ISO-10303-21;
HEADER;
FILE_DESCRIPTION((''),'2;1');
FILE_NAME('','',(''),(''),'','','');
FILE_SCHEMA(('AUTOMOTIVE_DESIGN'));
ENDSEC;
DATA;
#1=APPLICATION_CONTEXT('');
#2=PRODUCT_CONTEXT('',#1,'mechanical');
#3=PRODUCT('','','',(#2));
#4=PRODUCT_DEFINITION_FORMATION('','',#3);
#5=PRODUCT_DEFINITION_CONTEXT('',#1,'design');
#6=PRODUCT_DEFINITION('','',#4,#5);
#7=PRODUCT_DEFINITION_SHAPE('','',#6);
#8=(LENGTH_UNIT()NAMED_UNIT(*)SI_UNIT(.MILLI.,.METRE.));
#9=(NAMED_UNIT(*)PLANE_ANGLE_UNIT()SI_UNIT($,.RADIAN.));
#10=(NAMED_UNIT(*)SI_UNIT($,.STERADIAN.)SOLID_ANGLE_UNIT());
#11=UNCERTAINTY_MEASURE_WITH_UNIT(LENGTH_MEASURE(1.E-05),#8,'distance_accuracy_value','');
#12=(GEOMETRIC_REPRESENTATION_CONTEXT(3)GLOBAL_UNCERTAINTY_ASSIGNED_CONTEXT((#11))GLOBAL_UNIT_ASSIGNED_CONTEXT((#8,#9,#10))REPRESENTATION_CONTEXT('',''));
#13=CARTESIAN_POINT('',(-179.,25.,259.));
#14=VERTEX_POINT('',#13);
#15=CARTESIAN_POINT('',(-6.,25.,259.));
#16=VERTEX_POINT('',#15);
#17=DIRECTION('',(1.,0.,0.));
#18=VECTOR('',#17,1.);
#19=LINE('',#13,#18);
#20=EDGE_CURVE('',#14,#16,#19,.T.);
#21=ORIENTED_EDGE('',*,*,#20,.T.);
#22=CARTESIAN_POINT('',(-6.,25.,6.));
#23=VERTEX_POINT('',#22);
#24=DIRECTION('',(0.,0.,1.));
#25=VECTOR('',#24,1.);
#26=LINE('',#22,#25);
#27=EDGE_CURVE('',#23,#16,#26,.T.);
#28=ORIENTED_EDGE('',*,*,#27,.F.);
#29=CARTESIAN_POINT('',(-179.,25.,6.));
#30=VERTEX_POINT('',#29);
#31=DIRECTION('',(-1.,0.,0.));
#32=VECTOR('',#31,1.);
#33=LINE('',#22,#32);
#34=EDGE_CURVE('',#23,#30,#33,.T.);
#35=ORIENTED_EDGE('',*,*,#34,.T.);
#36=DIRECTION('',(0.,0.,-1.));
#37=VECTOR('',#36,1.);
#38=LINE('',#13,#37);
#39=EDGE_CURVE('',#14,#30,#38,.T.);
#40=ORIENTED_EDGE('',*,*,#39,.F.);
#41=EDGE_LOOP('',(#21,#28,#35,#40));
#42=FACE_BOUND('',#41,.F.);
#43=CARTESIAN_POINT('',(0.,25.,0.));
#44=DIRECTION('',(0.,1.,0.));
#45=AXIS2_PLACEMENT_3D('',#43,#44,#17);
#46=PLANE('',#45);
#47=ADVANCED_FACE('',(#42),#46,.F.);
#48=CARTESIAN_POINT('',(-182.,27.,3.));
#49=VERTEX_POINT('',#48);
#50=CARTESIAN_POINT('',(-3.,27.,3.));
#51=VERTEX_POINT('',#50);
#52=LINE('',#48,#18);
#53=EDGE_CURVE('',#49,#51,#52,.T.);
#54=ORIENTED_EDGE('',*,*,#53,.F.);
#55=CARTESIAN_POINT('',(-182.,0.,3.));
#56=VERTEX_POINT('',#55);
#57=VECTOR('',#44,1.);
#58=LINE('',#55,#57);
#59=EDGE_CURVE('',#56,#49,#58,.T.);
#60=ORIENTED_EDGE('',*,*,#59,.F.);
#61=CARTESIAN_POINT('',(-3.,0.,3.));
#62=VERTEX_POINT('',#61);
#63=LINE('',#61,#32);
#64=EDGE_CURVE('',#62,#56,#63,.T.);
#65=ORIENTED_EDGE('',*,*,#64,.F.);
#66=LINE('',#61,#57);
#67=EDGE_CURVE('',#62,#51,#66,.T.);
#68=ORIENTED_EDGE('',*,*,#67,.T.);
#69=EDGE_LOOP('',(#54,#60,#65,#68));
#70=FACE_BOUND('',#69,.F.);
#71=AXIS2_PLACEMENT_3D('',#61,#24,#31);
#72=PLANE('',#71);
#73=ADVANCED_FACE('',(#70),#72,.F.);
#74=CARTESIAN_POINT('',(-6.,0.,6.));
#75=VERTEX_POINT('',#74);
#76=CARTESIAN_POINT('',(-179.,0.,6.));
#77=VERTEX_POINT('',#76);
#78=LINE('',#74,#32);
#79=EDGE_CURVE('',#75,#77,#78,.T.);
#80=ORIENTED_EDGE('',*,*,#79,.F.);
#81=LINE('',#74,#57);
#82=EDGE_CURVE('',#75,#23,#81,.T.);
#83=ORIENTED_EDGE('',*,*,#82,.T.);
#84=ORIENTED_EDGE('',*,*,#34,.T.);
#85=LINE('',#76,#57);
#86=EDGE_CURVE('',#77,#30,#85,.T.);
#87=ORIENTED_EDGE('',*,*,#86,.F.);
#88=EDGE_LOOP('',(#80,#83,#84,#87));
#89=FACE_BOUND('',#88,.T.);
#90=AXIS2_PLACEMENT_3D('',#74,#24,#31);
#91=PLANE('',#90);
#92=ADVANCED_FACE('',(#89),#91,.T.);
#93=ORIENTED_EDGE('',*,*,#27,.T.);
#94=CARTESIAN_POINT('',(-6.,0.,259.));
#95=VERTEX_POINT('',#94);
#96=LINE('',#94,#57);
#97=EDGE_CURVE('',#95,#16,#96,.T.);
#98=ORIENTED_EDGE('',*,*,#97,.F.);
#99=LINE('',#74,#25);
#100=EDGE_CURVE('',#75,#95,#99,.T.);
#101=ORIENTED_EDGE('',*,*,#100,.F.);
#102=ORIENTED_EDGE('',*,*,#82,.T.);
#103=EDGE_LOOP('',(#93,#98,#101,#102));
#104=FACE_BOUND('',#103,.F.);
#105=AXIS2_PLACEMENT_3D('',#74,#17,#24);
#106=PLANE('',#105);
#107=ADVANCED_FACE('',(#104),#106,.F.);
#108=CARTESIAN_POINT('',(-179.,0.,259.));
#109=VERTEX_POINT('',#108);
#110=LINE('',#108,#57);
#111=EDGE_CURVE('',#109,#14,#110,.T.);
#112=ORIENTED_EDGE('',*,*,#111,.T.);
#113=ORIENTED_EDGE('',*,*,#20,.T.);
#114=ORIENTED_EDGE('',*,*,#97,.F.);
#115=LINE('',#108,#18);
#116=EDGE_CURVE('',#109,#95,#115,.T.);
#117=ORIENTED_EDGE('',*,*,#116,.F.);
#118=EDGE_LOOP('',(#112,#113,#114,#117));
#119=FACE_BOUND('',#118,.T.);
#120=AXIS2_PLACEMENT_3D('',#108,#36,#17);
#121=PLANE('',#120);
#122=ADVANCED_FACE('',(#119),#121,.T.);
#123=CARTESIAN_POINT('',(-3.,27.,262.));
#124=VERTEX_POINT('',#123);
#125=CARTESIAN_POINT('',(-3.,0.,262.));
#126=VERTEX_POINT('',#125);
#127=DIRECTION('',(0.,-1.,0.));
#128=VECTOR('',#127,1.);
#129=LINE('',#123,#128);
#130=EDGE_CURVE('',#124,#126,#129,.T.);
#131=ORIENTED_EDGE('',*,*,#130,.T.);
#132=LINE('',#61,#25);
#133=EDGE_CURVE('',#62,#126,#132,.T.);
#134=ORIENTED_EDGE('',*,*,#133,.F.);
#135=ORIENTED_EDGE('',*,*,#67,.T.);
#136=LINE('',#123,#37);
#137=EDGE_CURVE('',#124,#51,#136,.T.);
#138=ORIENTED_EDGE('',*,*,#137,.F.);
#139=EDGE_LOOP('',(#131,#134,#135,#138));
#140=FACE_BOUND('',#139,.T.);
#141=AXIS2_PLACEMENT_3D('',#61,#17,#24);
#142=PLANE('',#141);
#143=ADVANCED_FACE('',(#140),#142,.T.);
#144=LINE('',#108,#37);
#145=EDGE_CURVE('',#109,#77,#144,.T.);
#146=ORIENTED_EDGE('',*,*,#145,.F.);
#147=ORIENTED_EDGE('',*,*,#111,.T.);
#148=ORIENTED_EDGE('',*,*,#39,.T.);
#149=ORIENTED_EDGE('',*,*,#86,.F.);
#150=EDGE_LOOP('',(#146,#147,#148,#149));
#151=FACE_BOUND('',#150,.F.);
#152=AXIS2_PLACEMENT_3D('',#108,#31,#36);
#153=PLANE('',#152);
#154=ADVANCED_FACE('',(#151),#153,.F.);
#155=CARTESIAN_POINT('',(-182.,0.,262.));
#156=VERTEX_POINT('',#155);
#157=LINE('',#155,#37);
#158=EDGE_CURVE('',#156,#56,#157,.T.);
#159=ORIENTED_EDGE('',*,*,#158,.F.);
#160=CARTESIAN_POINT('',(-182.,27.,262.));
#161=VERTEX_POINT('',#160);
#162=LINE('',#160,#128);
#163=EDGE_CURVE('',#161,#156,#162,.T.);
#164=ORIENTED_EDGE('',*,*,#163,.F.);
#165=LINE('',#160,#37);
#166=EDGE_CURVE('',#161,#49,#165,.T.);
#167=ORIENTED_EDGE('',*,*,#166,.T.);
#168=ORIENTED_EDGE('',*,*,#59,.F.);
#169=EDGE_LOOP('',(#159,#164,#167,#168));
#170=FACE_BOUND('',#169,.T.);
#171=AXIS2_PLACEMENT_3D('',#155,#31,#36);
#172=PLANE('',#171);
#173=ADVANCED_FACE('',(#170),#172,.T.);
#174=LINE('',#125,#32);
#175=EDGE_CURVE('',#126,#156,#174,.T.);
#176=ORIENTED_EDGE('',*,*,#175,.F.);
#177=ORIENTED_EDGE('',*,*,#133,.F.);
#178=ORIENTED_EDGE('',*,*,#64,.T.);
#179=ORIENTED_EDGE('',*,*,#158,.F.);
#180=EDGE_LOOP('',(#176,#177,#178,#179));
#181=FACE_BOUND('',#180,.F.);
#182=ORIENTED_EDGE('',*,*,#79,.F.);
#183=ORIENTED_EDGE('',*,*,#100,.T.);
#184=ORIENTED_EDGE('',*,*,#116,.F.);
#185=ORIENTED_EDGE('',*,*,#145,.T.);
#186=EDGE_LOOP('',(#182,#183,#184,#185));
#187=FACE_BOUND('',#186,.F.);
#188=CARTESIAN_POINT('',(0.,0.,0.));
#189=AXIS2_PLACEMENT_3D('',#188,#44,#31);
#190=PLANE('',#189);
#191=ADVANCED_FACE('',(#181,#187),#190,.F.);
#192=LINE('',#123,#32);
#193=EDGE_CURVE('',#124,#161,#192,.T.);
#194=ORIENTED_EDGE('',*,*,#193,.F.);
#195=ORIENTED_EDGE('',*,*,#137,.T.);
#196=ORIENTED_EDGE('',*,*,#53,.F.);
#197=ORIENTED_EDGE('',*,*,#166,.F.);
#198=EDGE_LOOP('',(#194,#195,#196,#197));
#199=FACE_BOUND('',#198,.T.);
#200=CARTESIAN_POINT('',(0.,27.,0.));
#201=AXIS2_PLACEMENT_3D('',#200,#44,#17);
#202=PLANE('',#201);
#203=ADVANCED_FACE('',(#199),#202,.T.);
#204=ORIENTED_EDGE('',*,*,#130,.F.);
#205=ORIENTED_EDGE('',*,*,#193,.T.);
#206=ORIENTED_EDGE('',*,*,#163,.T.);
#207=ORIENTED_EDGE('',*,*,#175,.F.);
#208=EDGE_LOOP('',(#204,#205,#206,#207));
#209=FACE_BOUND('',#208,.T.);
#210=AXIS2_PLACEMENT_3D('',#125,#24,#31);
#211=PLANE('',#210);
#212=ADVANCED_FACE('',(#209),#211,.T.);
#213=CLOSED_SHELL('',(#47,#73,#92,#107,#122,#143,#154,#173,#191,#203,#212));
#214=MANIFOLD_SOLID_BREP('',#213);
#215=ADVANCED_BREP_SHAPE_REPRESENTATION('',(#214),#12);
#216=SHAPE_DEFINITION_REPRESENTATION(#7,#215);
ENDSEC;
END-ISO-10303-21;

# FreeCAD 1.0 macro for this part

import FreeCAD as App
import Part
import Sketcher
Q = App.Units.Quantity

doc = App.newDocument("Part")
body = doc.addObject("PartDesign::Body", "Body")

# Sketch on XZ plane
sketch1 = body.newObject("Sketcher::SketchObject", "Sketch")
sketch1.AttachmentSupport = (doc.getObject("XZ_Plane"), [""])
sketch1.MapMode = "FlatFace"
sketch1.addGeometry([
    Part.LineSegment(App.Vector(-3, 262, 0), App.Vector(-3, 3, 0)),  # 0
    Part.LineSegment(App.Vector(-3, 3, 0), App.Vector(-182, 3, 0)),  # 1
    Part.LineSegment(App.Vector(-182, 3, 0), App.Vector(-182, 262, 0)),  # 2
    Part.LineSegment(App.Vector(-182, 262, 0), App.Vector(-3, 262, 0)),  # 3
    Part.LineSegment(App.Vector(-179, 6, 0), App.Vector(-6, 6, 0)),  # 4
    Part.LineSegment(App.Vector(-6, 6, 0), App.Vector(-6, 259, 0)),  # 5
    Part.LineSegment(App.Vector(-6, 259, 0), App.Vector(-179, 259, 0)),  # 6
    Part.LineSegment(App.Vector(-179, 259, 0), App.Vector(-179, 6, 0)),  # 7
], False)
sketch1.addConstraint([
    Sketcher.Constraint("Coincident", 0, 2, 1, 1),
    Sketcher.Constraint("Coincident", 1, 2, 2, 1),
    Sketcher.Constraint("Coincident", 2, 2, 3, 1),
    Sketcher.Constraint("Coincident", 3, 2, 0, 1),
    Sketcher.Constraint("Coincident", 4, 2, 5, 1),
    Sketcher.Constraint("Coincident", 5, 2, 6, 1),
    Sketcher.Constraint("Coincident", 6, 2, 7, 1),
    Sketcher.Constraint("Coincident", 7, 2, 4, 1),
    Sketcher.Constraint("Vertical", 0),
    Sketcher.Constraint("Horizontal", 1),
    Sketcher.Constraint("Vertical", 2),
    Sketcher.Constraint("Horizontal", 3),
    Sketcher.Constraint("Horizontal", 4),
    Sketcher.Constraint("Vertical", 5),
    Sketcher.Constraint("Horizontal", 6),
    Sketcher.Constraint("Vertical", 7),
    Sketcher.Constraint("DistanceX", 1, 2, 1, 1, Q("179 mm")),
    Sketcher.Constraint("DistanceX", 4, 1, 4, 2, Q("173 mm")),
    Sketcher.Constraint("DistanceY", 0, 2, 0, 1, Q("259 mm")),
    Sketcher.Constraint("DistanceY", 5, 1, 5, 2, Q("253 mm")),
    Sketcher.Constraint("DistanceX", 0, 2, -1, 1, Q("3 mm")),
    Sketcher.Constraint("DistanceY", -1, 1, 0, 2, Q("3 mm")),
    Sketcher.Constraint("DistanceX", 4, 2, -1, 1, Q("6 mm")),
    Sketcher.Constraint("DistanceY", -1, 1, 4, 2, Q("6 mm")),
])
pad1 = body.newObject("PartDesign::Pad", "Pad")
pad1.Profile = sketch1
pad1.Length = 25
pad1.Reversed = True

# Sketch on XZ plane
sketch2 = body.newObject("Sketcher::SketchObject", "Sketch001")
sketch2.AttachmentSupport = (doc.getObject("XZ_Plane"), [""])
sketch2.MapMode = "FlatFace"
sketch2.AttachmentOffset = App.Placement(App.Vector(0, 0, -25), App.Rotation())
sketch2.addGeometry([
    Part.LineSegment(App.Vector(-3, 3, 0), App.Vector(-182, 3, 0)),
    Part.LineSegment(App.Vector(-182, 3, 0), App.Vector(-182, 262, 0)),
    Part.LineSegment(App.Vector(-182, 262, 0), App.Vector(-3, 262, 0)),
    Part.LineSegment(App.Vector(-3, 262, 0), App.Vector(-3, 3, 0)),
], False)
sketch2.addConstraint([
    Sketcher.Constraint("Coincident", 0, 2, 1, 1),
    Sketcher.Constraint("Coincident", 1, 2, 2, 1),
    Sketcher.Constraint("Coincident", 2, 2, 3, 1),
    Sketcher.Constraint("Coincident", 3, 2, 0, 1),
    Sketcher.Constraint("Horizontal", 0),
    Sketcher.Constraint("Vertical", 1),
    Sketcher.Constraint("Horizontal", 2),
    Sketcher.Constraint("Vertical", 3),
    Sketcher.Constraint("DistanceX", 0, 2, 0, 1, Q("179 mm")),
    Sketcher.Constraint("DistanceY", 1, 1, 1, 2, Q("259 mm")),
    Sketcher.Constraint("DistanceX", 0, 2, -1, 1, Q("182 mm")),
    Sketcher.Constraint("DistanceY", -1, 1, 0, 2, Q("3 mm")),
])
pad2 = body.newObject("PartDesign::Pad", "Pad001")
pad2.Profile = sketch2
pad2.Length = 2
pad2.Reversed = True

doc.recompute()
